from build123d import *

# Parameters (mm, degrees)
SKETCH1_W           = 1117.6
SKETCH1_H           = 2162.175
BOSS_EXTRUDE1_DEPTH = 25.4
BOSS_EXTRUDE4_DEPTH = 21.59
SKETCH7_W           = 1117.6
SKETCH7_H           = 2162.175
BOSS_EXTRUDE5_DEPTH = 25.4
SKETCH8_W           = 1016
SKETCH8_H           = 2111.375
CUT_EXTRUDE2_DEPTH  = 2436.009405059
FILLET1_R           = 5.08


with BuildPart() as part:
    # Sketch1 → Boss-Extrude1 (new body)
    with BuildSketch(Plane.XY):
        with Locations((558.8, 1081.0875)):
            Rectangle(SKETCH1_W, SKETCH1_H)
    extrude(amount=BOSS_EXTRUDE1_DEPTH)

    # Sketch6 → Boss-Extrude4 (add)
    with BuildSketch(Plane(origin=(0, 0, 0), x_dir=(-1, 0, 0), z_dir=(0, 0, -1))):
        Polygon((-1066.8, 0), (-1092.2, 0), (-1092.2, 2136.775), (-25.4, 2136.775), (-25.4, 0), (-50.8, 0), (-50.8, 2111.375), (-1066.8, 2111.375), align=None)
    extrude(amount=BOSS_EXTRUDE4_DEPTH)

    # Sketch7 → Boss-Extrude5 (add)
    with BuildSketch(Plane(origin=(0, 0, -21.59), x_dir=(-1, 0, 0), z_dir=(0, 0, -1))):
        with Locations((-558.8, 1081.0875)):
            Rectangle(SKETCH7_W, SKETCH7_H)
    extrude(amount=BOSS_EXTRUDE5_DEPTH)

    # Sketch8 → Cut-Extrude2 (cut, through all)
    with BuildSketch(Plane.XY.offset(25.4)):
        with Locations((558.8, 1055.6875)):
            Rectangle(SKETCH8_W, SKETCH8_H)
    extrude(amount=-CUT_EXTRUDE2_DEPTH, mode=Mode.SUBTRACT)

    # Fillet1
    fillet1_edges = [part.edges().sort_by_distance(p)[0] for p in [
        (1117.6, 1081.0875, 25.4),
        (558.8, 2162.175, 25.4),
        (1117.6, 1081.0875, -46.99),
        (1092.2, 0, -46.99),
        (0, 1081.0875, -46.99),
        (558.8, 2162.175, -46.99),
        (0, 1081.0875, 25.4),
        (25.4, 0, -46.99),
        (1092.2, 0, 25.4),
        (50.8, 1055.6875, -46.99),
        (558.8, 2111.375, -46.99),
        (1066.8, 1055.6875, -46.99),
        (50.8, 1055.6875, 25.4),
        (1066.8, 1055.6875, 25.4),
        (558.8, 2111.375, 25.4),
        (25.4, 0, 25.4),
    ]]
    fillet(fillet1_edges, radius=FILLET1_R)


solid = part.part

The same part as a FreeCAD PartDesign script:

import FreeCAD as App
import Part
import Sketcher

V = App.Vector
Q = App.Units.Quantity


def edges_at(feature, points):
    """Names of the edges that pass closest to the given points."""
    edges = feature.Shape.Edges
    near = lambda p: min(range(len(edges)), key=lambda i: edges[i].distToShape(Part.Vertex(*p))[0])
    return sorted({f"Edge{near(p) + 1}" for p in points})

doc = App.newDocument("Part")
body = doc.addObject("PartDesign::Body", "Body")

# Sketch on XY plane
sketch1 = body.newObject("Sketcher::SketchObject", "Sketch")
sketch1.AttachmentSupport = (doc.getObject("XY_Plane"), [""])
sketch1.MapMode = "FlatFace"
sketch1.addGeometry([
    Part.LineSegment(V(0, 2162, 0), V(0, 0, 0)),
    Part.LineSegment(V(0, 0, 0), V(1118, 0, 0)),
    Part.LineSegment(V(1118, 0, 0), V(1118, 2162, 0)),
    Part.LineSegment(V(1118, 2162, 0), V(0, 2162, 0)),
], False)
sketch1.addConstraint([
    Sketcher.Constraint("Coincident", 0, 2, 1, 1),
    Sketcher.Constraint("Coincident", 1, 2, 2, 1),
    Sketcher.Constraint("Coincident", 2, 2, 3, 1),
    Sketcher.Constraint("Coincident", 3, 2, 0, 1),
    Sketcher.Constraint("Vertical", 0),
    Sketcher.Constraint("Horizontal", 1),
    Sketcher.Constraint("Vertical", 2),
    Sketcher.Constraint("Horizontal", 3),
    Sketcher.Constraint("Coincident", 0, 2, -1, 1),
    Sketcher.Constraint("DistanceX", 1, 1, 1, 2, Q("44 in")),
    Sketcher.Constraint("DistanceY", 0, 2, 0, 1, Q("85.125 in")),
])
pad1 = body.newObject("PartDesign::Pad", "Pad")
pad1.Profile = sketch1
pad1.Length = Q("1 in")

# Sketch on XY plane
sketch2 = body.newObject("Sketcher::SketchObject", "Sketch001")
sketch2.AttachmentSupport = (doc.getObject("XY_Plane"), [""])
sketch2.MapMode = "FlatFace"
sketch2.addGeometry([
    Part.LineSegment(V(1092, 0, 0), V(1067, 0, 0)),  # 0
    Part.LineSegment(V(1067, 0, 0), V(1067, 2111, 0)),  # 1
    Part.LineSegment(V(1067, 2111, 0), V(51, 2111, 0)),  # 2
    Part.LineSegment(V(51, 2111, 0), V(51, 0, 0)),  # 3
    Part.LineSegment(V(51, 0, 0), V(25, 0, 0)),  # 4
    Part.LineSegment(V(25, 0, 0), V(25, 2137, 0)),  # 5
    Part.LineSegment(V(25, 2137, 0), V(1092, 2137, 0)),  # 6
    Part.LineSegment(V(1092, 2137, 0), V(1092, 0, 0)),  # 7
], False)
sketch2.addConstraint([
    Sketcher.Constraint("Coincident", 0, 2, 1, 1),
    Sketcher.Constraint("Coincident", 1, 2, 2, 1),
    Sketcher.Constraint("Coincident", 2, 2, 3, 1),
    Sketcher.Constraint("Coincident", 3, 2, 4, 1),
    Sketcher.Constraint("Coincident", 4, 2, 5, 1),
    Sketcher.Constraint("Coincident", 5, 2, 6, 1),
    Sketcher.Constraint("Coincident", 6, 2, 7, 1),
    Sketcher.Constraint("Coincident", 7, 2, 0, 1),
    Sketcher.Constraint("Horizontal", 0),
    Sketcher.Constraint("Vertical", 1),
    Sketcher.Constraint("Horizontal", 2),
    Sketcher.Constraint("Vertical", 3),
    Sketcher.Constraint("Horizontal", 4),
    Sketcher.Constraint("Vertical", 5),
    Sketcher.Constraint("Horizontal", 6),
    Sketcher.Constraint("Vertical", 7),
    Sketcher.Constraint("PointOnObject", 0, 2, -1),
    Sketcher.Constraint("PointOnObject", 3, 2, -1),
    Sketcher.Constraint("Equal", 0, 4),
    Sketcher.Constraint("DistanceX", 0, 2, 0, 1, Q("1 in")),
    Sketcher.Constraint("DistanceX", 2, 2, 2, 1, Q("40 in")),
    Sketcher.Constraint("DistanceX", -1, 1, 0, 2, Q("42 in")),
    Sketcher.Constraint("DistanceY", 2, 2, 5, 2, Q("1 in")),
    Sketcher.Constraint("DistanceY", 1, 1, 1, 2, Q("83.125 in")),
])
pad2 = body.newObject("PartDesign::Pad", "Pad001")
pad2.Profile = sketch2
pad2.Length = Q("0.85 in")
pad2.Reversed = True

# Sketch on XY plane
sketch3 = body.newObject("Sketcher::SketchObject", "Sketch002")
sketch3.AttachmentSupport = (doc.getObject("XY_Plane"), [""])
sketch3.MapMode = "FlatFace"
sketch3.AttachmentOffset = App.Placement(V(0, 0, -0.85 * 25.4), App.Rotation())
sketch3.addGeometry([
    Part.LineSegment(V(1118, 2162, 0), V(1118, 0, 0)),
    Part.LineSegment(V(1118, 0, 0), V(0, 0, 0)),
    Part.LineSegment(V(0, 0, 0), V(0, 2162, 0)),
    Part.LineSegment(V(0, 2162, 0), V(1118, 2162, 0)),
], False)
sketch3.addConstraint([
    Sketcher.Constraint("Coincident", 0, 2, 1, 1),
    Sketcher.Constraint("Coincident", 1, 2, 2, 1),
    Sketcher.Constraint("Coincident", 2, 2, 3, 1),
    Sketcher.Constraint("Coincident", 3, 2, 0, 1),
    Sketcher.Constraint("Vertical", 0),
    Sketcher.Constraint("Horizontal", 1),
    Sketcher.Constraint("Vertical", 2),
    Sketcher.Constraint("Horizontal", 3),
    Sketcher.Constraint("Coincident", 1, 2, -1, 1),
    Sketcher.Constraint("DistanceX", 1, 2, 1, 1, Q("44 in")),
    Sketcher.Constraint("DistanceY", 0, 2, 0, 1, Q("85.125 in")),
])
pad3 = body.newObject("PartDesign::Pad", "Pad002")
pad3.Profile = sketch3
pad3.Length = Q("1 in")
pad3.Reversed = True

# Sketch on XY plane
sketch4 = body.newObject("Sketcher::SketchObject", "Sketch003")
sketch4.AttachmentSupport = (doc.getObject("XY_Plane"), [""])
sketch4.MapMode = "FlatFace"
sketch4.AttachmentOffset = App.Placement(V(0, 0, 1 * 25.4), App.Rotation())
sketch4.addGeometry([
    Part.LineSegment(V(51, 2111, 0), V(51, 0, 0)),
    Part.LineSegment(V(51, 0, 0), V(1067, 0, 0)),
    Part.LineSegment(V(1067, 0, 0), V(1067, 2111, 0)),
    Part.LineSegment(V(1067, 2111, 0), V(51, 2111, 0)),
], False)
sketch4.addConstraint([
    Sketcher.Constraint("Coincident", 0, 2, 1, 1),
    Sketcher.Constraint("Coincident", 1, 2, 2, 1),
    Sketcher.Constraint("Coincident", 2, 2, 3, 1),
    Sketcher.Constraint("Coincident", 3, 2, 0, 1),
    Sketcher.Constraint("Vertical", 0),
    Sketcher.Constraint("Horizontal", 1),
    Sketcher.Constraint("Vertical", 2),
    Sketcher.Constraint("Horizontal", 3),
    Sketcher.Constraint("PointOnObject", 0, 2, -1),
    Sketcher.Constraint("DistanceX", 1, 1, 1, 2, Q("40 in")),
    Sketcher.Constraint("DistanceX", -1, 1, 0, 2, Q("2 in")),
    Sketcher.Constraint("DistanceY", 0, 2, 0, 1, Q("83.125 in")),
])
pocket1 = body.newObject("PartDesign::Pocket", "Pocket")
pocket1.Profile = sketch4
pocket1.Type = "ThroughAll"
doc.recompute()

fillet = body.newObject("PartDesign::Fillet", "Fillet")
fillet.Base = (pocket1, edges_at(pocket1, [
    (1117.6, 1081.088, 25.4),
    (558.8, 2162.175, 25.4),
    (1117.6, 1081.088, -46.99),
    (1092.2, 0, -46.99),
    (0, 1081.088, -46.99),
    (558.8, 2162.175, -46.99),
    (0, 1081.088, 25.4),
    (25.4, 0, -46.99),
    (1092.2, 0, 25.4),
    (50.8, 1055.688, -46.99),
    (558.8, 2111.375, -46.99),
    (1066.8, 1055.688, -46.99),
    (50.8, 1055.688, 25.4),
    (1066.8, 1055.688, 25.4),
    (558.8, 2111.375, 25.4),
    (25.4, 0, 25.4),
]))
fillet.Radius = Q("0.2 in")

doc.recompute()
